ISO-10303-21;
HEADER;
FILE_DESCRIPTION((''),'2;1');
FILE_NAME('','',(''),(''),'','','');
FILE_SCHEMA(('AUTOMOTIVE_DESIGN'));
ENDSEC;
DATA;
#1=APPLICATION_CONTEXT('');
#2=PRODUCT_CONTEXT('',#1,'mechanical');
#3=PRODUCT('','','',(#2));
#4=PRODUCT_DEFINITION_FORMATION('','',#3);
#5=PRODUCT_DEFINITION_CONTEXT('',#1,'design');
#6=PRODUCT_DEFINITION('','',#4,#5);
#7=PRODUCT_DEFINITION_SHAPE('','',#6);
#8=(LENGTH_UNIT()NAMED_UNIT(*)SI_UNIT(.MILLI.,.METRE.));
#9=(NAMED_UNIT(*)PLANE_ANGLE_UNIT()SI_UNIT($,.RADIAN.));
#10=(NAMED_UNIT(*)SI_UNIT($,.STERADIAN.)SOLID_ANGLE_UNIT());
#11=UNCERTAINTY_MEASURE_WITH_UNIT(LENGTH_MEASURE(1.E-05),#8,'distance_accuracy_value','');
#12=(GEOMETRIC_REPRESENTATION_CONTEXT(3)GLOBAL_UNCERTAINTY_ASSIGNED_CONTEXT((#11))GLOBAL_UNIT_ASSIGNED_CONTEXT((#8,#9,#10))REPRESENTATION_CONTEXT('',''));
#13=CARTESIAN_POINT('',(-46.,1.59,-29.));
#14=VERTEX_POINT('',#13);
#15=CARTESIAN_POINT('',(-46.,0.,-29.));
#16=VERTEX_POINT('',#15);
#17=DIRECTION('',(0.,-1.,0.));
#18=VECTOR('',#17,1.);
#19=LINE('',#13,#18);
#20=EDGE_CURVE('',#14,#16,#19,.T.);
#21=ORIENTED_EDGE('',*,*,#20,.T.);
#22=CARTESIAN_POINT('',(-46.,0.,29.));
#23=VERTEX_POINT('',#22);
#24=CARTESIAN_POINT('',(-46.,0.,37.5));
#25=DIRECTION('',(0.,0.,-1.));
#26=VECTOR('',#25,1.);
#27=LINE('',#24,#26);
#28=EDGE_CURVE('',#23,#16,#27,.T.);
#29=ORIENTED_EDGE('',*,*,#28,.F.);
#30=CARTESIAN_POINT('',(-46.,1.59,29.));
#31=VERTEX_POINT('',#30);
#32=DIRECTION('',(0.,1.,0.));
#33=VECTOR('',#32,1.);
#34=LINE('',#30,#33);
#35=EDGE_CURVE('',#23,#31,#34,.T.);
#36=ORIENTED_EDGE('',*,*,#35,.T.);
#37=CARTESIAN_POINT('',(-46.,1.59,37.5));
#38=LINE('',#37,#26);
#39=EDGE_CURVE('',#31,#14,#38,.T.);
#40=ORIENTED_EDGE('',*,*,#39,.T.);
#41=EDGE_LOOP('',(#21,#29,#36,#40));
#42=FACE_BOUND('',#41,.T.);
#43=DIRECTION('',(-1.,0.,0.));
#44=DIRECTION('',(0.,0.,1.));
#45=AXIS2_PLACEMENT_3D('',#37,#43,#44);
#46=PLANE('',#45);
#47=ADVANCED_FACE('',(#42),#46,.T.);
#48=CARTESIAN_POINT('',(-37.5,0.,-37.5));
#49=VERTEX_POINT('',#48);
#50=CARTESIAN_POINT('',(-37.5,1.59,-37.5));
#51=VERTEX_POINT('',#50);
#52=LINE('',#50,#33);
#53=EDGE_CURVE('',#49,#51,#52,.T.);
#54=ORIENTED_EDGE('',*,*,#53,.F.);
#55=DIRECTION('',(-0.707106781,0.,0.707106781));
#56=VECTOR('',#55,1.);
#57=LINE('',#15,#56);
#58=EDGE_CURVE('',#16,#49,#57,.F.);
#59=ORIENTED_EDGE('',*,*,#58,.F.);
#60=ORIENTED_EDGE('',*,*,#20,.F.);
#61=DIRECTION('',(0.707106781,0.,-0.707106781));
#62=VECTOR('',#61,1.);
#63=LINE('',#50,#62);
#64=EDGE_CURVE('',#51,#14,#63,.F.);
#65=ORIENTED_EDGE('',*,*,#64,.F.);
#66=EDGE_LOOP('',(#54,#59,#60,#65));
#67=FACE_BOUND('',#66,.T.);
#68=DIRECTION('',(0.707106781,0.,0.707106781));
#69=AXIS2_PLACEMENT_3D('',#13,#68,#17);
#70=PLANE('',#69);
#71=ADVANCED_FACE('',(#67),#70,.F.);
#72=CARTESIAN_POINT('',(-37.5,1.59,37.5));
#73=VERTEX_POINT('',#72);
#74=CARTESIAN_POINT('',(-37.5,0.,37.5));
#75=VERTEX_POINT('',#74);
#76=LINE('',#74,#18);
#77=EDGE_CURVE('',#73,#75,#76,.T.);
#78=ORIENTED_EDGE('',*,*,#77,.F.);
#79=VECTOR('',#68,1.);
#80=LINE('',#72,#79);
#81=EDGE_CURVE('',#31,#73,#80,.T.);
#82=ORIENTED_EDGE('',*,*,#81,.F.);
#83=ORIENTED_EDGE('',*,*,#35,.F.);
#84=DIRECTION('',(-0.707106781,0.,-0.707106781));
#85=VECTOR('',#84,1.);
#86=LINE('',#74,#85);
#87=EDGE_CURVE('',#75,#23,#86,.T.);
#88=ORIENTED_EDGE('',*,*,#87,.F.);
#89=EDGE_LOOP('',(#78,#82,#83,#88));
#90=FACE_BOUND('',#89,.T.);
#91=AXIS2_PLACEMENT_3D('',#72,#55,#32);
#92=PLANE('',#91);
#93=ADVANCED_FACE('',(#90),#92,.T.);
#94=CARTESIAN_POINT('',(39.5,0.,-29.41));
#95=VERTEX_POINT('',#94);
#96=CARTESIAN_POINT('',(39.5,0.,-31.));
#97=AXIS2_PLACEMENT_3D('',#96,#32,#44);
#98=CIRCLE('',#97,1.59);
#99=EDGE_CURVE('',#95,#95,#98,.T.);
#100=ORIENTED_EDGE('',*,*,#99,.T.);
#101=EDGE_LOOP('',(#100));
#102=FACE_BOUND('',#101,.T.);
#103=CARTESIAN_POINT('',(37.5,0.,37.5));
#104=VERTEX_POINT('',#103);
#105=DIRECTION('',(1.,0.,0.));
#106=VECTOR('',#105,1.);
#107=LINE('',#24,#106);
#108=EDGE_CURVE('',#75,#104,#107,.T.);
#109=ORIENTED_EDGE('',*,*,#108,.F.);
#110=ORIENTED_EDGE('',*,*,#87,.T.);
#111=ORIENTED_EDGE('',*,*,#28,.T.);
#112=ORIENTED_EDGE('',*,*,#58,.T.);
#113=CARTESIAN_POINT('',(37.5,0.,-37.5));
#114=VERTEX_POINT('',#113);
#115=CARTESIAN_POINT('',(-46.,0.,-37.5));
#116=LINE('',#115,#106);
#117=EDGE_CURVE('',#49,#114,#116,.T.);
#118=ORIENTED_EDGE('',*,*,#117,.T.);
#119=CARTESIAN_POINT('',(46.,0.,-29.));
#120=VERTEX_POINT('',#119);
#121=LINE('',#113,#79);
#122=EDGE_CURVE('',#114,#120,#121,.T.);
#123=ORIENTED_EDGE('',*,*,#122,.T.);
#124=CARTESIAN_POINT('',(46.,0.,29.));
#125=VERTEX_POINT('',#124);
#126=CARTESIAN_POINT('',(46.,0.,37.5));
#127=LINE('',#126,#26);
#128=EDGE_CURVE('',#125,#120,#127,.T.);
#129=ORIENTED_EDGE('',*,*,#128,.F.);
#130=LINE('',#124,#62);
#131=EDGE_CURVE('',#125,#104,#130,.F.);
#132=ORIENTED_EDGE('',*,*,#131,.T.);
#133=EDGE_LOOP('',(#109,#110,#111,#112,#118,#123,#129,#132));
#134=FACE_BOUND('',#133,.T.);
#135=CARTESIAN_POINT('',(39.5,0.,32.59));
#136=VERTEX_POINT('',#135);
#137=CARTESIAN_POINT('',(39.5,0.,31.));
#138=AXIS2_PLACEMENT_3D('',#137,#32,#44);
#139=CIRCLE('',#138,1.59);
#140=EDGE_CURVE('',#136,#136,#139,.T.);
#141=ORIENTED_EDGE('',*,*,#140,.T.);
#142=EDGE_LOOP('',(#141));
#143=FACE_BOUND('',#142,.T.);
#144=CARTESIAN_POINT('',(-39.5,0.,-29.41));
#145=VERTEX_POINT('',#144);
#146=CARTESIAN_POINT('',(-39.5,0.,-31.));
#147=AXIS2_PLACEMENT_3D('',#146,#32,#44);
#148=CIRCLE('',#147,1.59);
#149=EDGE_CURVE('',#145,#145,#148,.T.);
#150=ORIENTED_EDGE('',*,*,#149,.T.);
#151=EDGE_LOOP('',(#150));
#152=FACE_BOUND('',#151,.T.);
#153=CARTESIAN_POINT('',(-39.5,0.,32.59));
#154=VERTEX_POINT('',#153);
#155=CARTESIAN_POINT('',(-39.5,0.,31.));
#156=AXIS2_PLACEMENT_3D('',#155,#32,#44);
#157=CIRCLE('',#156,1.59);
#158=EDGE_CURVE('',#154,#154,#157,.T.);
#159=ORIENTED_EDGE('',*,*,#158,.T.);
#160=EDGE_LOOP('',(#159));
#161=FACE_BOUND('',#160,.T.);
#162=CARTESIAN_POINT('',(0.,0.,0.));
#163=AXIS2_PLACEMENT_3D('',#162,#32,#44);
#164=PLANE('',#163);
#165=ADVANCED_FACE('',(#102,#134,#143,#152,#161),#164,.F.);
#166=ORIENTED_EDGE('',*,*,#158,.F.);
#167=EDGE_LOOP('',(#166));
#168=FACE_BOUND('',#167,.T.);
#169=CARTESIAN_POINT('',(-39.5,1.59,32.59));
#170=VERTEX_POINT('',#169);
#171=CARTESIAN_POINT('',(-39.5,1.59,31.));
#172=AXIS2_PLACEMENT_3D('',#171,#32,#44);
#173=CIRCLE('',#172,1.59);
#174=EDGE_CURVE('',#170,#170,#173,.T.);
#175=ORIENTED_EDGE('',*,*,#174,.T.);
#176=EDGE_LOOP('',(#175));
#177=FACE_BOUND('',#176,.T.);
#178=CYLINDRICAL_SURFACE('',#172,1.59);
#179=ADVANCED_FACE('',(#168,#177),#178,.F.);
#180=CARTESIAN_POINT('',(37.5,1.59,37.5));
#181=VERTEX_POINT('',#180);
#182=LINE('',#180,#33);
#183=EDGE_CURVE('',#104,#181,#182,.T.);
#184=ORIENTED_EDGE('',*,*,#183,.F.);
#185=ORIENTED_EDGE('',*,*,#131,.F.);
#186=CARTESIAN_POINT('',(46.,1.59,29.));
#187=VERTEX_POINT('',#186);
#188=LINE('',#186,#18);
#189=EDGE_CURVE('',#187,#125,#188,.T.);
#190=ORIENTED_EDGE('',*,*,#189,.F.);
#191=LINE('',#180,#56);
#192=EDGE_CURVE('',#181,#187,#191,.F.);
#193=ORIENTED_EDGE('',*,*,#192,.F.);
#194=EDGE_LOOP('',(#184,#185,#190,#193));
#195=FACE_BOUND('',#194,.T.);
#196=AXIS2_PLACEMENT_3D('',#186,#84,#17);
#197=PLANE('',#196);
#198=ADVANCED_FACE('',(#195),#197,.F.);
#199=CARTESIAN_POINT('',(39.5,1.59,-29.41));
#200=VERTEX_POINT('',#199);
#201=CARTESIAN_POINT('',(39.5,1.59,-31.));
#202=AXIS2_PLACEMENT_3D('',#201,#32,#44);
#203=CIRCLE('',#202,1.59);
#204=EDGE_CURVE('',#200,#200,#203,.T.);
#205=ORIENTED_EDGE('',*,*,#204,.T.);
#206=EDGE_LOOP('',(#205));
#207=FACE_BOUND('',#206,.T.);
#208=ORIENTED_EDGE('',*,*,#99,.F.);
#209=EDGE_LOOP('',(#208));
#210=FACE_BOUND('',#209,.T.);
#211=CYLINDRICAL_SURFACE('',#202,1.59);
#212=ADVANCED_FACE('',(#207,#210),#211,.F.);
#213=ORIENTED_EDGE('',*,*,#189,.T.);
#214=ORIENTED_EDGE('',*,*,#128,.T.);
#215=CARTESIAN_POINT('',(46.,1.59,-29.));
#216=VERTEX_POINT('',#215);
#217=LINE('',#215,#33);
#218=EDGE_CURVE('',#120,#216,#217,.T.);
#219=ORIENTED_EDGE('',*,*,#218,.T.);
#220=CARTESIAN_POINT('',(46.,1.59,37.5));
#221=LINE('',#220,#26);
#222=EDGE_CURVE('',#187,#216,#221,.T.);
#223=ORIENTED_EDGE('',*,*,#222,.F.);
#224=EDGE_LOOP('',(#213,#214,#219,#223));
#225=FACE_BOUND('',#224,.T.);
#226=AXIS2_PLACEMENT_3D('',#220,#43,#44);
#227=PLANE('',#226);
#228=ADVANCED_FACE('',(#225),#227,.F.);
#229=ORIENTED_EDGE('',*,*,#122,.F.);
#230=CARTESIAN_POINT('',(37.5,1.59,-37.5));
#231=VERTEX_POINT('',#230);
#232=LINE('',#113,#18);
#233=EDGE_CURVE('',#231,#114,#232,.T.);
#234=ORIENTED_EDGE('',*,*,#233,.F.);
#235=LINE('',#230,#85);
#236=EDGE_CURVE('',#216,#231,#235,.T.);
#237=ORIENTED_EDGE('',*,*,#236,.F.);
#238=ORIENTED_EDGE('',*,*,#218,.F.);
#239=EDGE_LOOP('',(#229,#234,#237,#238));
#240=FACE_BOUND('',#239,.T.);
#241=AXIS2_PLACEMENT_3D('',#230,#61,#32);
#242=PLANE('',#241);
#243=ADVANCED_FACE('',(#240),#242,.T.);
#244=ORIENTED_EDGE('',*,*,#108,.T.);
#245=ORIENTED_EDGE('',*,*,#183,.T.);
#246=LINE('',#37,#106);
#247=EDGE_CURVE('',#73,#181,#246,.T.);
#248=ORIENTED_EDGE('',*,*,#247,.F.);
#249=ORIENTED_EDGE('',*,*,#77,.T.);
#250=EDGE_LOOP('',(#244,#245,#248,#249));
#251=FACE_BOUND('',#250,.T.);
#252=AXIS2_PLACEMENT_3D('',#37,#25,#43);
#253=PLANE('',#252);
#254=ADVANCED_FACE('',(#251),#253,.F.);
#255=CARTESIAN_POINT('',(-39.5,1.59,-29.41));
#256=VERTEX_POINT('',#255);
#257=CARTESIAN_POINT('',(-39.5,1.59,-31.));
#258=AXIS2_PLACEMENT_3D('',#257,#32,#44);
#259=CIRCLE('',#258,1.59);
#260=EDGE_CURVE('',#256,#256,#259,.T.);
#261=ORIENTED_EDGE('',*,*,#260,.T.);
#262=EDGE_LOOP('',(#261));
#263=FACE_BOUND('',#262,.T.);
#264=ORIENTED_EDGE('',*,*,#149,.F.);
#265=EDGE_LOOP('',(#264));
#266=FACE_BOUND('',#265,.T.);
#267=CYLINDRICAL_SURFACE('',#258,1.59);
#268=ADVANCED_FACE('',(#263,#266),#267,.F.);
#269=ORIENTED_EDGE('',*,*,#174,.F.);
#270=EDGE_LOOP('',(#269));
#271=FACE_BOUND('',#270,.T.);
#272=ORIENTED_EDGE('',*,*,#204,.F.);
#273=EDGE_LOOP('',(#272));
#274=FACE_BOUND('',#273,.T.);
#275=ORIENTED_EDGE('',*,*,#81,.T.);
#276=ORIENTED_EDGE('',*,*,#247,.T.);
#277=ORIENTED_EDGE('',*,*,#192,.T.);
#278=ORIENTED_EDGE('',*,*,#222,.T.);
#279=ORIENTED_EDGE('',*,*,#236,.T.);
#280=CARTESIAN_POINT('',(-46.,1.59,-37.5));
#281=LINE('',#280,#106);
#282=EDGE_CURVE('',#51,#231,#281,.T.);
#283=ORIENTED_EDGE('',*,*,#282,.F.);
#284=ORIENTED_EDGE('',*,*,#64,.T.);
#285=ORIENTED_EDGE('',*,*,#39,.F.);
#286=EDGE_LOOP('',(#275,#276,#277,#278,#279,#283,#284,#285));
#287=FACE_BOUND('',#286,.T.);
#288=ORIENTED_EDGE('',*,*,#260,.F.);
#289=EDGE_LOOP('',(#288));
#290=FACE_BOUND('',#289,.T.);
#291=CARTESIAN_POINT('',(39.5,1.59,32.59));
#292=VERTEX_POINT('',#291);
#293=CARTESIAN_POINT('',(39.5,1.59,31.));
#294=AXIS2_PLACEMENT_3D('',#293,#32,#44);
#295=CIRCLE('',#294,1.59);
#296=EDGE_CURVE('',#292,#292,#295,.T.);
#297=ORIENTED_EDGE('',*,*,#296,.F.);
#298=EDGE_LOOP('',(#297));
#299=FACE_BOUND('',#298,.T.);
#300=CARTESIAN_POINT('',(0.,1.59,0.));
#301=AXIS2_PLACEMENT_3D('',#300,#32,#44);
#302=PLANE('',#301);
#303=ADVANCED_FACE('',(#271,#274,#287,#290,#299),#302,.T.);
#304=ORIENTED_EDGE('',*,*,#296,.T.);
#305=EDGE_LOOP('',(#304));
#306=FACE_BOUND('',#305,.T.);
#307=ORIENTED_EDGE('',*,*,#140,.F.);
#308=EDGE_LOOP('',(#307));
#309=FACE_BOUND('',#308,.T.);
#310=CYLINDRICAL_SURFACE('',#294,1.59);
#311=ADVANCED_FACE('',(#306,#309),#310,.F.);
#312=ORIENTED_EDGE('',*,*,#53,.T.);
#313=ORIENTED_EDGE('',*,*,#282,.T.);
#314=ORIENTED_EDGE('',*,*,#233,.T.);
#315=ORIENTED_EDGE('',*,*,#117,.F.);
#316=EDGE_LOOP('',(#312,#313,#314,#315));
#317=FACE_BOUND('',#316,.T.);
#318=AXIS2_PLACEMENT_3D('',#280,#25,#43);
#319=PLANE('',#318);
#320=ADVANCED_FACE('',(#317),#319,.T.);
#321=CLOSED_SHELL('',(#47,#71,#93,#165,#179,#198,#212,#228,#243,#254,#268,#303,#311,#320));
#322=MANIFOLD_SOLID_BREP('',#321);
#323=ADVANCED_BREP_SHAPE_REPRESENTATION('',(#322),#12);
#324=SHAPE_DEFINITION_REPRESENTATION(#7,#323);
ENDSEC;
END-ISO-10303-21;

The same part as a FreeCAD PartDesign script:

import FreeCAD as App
import Part
import Sketcher
Q = App.Units.Quantity


def edges_at(feature, points):
    """Names of the edges that pass closest to the given points."""
    edges = feature.Shape.Edges
    near = lambda p: min(range(len(edges)), key=lambda i: edges[i].distToShape(Part.Vertex(*p))[0])
    return sorted({f"Edge{near(p) + 1}" for p in points})

doc = App.newDocument("Part")
body = doc.addObject("PartDesign::Body", "Body")

# Sketch on XZ plane
sketch1 = body.newObject("Sketcher::SketchObject", "Sketch")
sketch1.AttachmentSupport = (doc.getObject("XZ_Plane"), [""])
sketch1.MapMode = "FlatFace"
sketch1.addGeometry(Part.LineSegment(App.Vector(-46, -38, 0), App.Vector(-46, 38, 0)), False)
sketch1.addGeometry(Part.LineSegment(App.Vector(-46, 38, 0), App.Vector(46, 38, 0)), False)
sketch1.addGeometry(Part.LineSegment(App.Vector(46, 38, 0), App.Vector(46, -38, 0)), False)
sketch1.addGeometry(Part.LineSegment(App.Vector(46, -38, 0), App.Vector(-46, -38, 0)), False)
sketch1.addConstraint(Sketcher.Constraint("Coincident", 0, 2, 1, 1))
sketch1.addConstraint(Sketcher.Constraint("Coincident", 1, 2, 2, 1))
sketch1.addConstraint(Sketcher.Constraint("Coincident", 2, 2, 3, 1))
sketch1.addConstraint(Sketcher.Constraint("Coincident", 3, 2, 0, 1))
sketch1.addConstraint(Sketcher.Constraint("Vertical", 0))
sketch1.addConstraint(Sketcher.Constraint("Horizontal", 1))
sketch1.addConstraint(Sketcher.Constraint("Vertical", 2))
sketch1.addConstraint(Sketcher.Constraint("Horizontal", 3))
sketch1.addConstraint(Sketcher.Constraint("Symmetric", 0, 2, 2, 2, -1, 1))
sketch1.addConstraint(Sketcher.Constraint("DistanceX", 1, 1, 1, 2, Q("92 mm")))
sketch1.addConstraint(Sketcher.Constraint("DistanceY", 0, 1, 0, 2, Q("75 mm")))
pad1 = body.newObject("PartDesign::Pad", "Pad")
pad1.Profile = sketch1
pad1.Length = 1.59
pad1.Reversed = True
doc.recompute()

chamfer = body.newObject("PartDesign::Chamfer", "Chamfer")
chamfer.Base = (pad1, edges_at(pad1, [
    (-46, 0.795, 37.5),
    (-46, 0.795, -37.5),
    (46, 0.795, -37.5),
    (46, 0.795, 37.5),
]))
chamfer.Size = 8.5

# Sketch on XZ plane
sketch2 = body.newObject("Sketcher::SketchObject", "Sketch001")
sketch2.AttachmentSupport = (doc.getObject("XZ_Plane"), [""])
sketch2.MapMode = "FlatFace"
sketch2.AttachmentOffset = App.Placement(App.Vector(0, 0, -1.59), App.Rotation())
sketch2.addGeometry(Part.Circle(App.Vector(-39.5, -31, 0), App.Vector(0, 0, 1), 1.6), False)
sketch2.addGeometry(Part.Circle(App.Vector(39.5, -31, 0), App.Vector(0, 0, 1), 1.6), False)
sketch2.addGeometry(Part.Circle(App.Vector(39.5, 31, 0), App.Vector(0, 0, 1), 1.6), False)
sketch2.addGeometry(Part.Circle(App.Vector(-39.5, 31, 0), App.Vector(0, 0, 1), 1.6), False)
sketch2.addConstraint(Sketcher.Constraint("Equal", 0, 1))
sketch2.addConstraint(Sketcher.Constraint("Equal", 1, 2))
sketch2.addConstraint(Sketcher.Constraint("Equal", 2, 3))
sketch2.addConstraint(Sketcher.Constraint("Symmetric", 0, 3, 2, 3, -1, 1))
sketch2.addConstraint(Sketcher.Constraint("Symmetric", 1, 3, 3, 3, -1, 1))
sketch2.addConstraint(Sketcher.Constraint("Symmetric", 0, 3, 1, 3, -2))
sketch2.addConstraint(Sketcher.Constraint("Diameter", 0, Q("3.18 mm")))
sketch2.addConstraint(Sketcher.Constraint("DistanceY", 0, 3, -1, 1, Q("31 mm")))
sketch2.addConstraint(Sketcher.Constraint("DistanceX", 0, 3, 1, 3, Q("79 mm")))
doc.recompute()
hole = body.newObject("PartDesign::Hole", "Hole")
hole.Profile = sketch2
hole.ThreadType = "None"
hole.Diameter = 3.18
hole.DepthType = "ThroughAll"
hole.Reversed = True

doc.recompute()
